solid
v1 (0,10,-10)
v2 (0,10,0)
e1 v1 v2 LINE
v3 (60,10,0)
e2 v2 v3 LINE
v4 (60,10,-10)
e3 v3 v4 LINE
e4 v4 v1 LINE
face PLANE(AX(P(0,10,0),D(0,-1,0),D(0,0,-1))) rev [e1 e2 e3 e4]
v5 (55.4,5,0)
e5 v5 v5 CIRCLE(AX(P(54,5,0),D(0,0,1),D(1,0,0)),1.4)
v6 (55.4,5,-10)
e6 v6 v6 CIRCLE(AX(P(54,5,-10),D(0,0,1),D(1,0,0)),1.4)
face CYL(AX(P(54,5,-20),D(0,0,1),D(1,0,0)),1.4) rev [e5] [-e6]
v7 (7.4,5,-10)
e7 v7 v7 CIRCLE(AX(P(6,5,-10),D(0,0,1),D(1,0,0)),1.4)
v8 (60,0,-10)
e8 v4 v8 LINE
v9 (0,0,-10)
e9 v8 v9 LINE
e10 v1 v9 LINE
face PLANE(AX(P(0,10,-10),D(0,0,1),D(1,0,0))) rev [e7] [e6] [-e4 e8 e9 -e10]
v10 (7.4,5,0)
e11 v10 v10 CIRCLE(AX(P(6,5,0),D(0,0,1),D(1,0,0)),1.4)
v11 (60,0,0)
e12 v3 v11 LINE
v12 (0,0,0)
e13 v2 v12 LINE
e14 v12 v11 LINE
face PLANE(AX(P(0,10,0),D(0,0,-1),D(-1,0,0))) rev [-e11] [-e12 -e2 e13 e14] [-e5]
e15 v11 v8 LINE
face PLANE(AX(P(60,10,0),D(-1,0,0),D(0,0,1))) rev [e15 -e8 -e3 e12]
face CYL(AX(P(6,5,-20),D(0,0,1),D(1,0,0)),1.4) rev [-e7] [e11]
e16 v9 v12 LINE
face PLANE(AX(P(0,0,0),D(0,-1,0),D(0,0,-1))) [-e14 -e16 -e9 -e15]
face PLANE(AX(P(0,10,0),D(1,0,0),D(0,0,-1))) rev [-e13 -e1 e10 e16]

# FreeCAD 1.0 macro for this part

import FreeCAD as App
import Part
import Sketcher
from FreeCAD import Vector

doc = App.newDocument("Part")
params = doc.addObject("Spreadsheet::Sheet", "Params")
for row, (alias, value) in enumerate([
    ("sketch1_width", "60 mm"),
    ("sketch1_height", "10 mm"),
    ("pad1_length", "10 mm"),
    ("sketch2_diameter", "2.8 mm"),
    ("pocket1_length", "20 mm"),
], start=1):
    params.set(f"A{row}", alias)
    params.set(f"B{row}", "=" + value)
    params.setAlias(f"B{row}", alias)

body = doc.addObject("PartDesign::Body", "Body")

# Sketch on XZ plane
sketch1 = body.newObject("Sketcher::SketchObject", "Sketch")
sketch1.AttachmentSupport = (doc.getObject("XZ_Plane"), [""])
sketch1.MapMode = "FlatFace"
sketch1.addGeometry([
    Part.LineSegment(Vector(0, -10, 0), Vector(0, 0, 0)),
    Part.LineSegment(Vector(0, 0, 0), Vector(60, 0, 0)),
    Part.LineSegment(Vector(60, 0, 0), Vector(60, -10, 0)),
    Part.LineSegment(Vector(60, -10, 0), Vector(0, -10, 0)),
], False)
sketch1.addConstraint([
    Sketcher.Constraint("Coincident", 0, 2, 1, 1),
    Sketcher.Constraint("Coincident", 1, 2, 2, 1),
    Sketcher.Constraint("Coincident", 2, 2, 3, 1),
    Sketcher.Constraint("Coincident", 3, 2, 0, 1),
    Sketcher.Constraint("Vertical", 0),
    Sketcher.Constraint("Horizontal", 1),
    Sketcher.Constraint("Vertical", 2),
    Sketcher.Constraint("Horizontal", 3),
    Sketcher.Constraint("Coincident", 0, 2, -1, 1),
    Sketcher.Constraint("DistanceX", 1, 1, 1, 2, 60.0),
    Sketcher.Constraint("DistanceY", 0, 1, 0, 2, 10.0),
])
sketch1.setExpression("Constraints[9]", "Params.sketch1_width")
sketch1.setExpression("Constraints[10]", "Params.sketch1_height")
pad1 = body.newObject("PartDesign::Pad", "Pad")
pad1.Profile = sketch1
pad1.setExpression("Length", "Params.pad1_length")
pad1.Reversed = True

# Sketch on XY plane
sketch2 = body.newObject("Sketcher::SketchObject", "Sketch001")
sketch2.AttachmentSupport = (doc.getObject("XY_Plane"), [""])
sketch2.MapMode = "FlatFace"
sketch2.addGeometry([
    Part.Circle(Vector(6, 5, 0), Vector(0, 0, 1), 1.4),
    Part.Circle(Vector(54, 5, 0), Vector(0, 0, 1), 1.4),
], False)
sketch2.addConstraint([
    Sketcher.Constraint("Equal", 0, 1),
    Sketcher.Constraint("Horizontal", 0, 3, 1, 3),
    Sketcher.Constraint("Diameter", 0, 2.8),
    Sketcher.Constraint("DistanceX", -1, 1, 0, 3, 6.0),
    Sketcher.Constraint("DistanceY", -1, 1, 0, 3, 5.0),
    Sketcher.Constraint("DistanceX", -1, 1, 1, 3, 54.0),
])
sketch2.setExpression("Constraints[2]", "Params.sketch2_diameter")
pocket1 = body.newObject("PartDesign::Pocket", "Pocket")
pocket1.Profile = sketch2
pocket1.setExpression("Length", "Params.pocket1_length")

doc.recompute()
